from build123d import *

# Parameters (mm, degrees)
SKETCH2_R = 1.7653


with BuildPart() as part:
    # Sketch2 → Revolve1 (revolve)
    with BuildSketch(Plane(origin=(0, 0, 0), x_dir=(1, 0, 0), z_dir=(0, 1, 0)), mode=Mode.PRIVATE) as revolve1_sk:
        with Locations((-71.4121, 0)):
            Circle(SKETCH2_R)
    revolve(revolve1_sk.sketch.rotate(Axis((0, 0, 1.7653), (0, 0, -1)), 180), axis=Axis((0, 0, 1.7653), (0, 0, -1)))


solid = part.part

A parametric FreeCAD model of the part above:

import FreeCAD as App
import Part
import Sketcher

V = App.Vector
Q = App.Units.Quantity

doc = App.newDocument("Part")
body = doc.addObject("PartDesign::Body", "Body")

# Sketch on XZ plane
sketch1 = doc.addObject("Sketcher::SketchObject", "Sketch")
body.addObject(sketch1)
sketch1.AttachmentSupport = (doc.XZ_Plane, [""])
sketch1.MapMode = "FlatFace"
sketch1.addGeometry(Part.Circle(V(-71.4, 0, 0), V(0, 0, 1), 1.8), False)
sketch1.addConstraint([
    Sketcher.Constraint("PointOnObject", 0, 3, -1),
    Sketcher.Constraint("Diameter", 0, Q("0.139 in")),
    Sketcher.Constraint("DistanceX", 0, 3, -1, 1, Q("2.8115 in")),
])
revolution = doc.addObject("PartDesign::Revolution", "Revolution")
body.addObject(revolution)
revolution.Profile = sketch1
revolution.ReferenceAxis = (sketch1, ["V_Axis"])
revolution.Angle = 360

doc.recompute()
